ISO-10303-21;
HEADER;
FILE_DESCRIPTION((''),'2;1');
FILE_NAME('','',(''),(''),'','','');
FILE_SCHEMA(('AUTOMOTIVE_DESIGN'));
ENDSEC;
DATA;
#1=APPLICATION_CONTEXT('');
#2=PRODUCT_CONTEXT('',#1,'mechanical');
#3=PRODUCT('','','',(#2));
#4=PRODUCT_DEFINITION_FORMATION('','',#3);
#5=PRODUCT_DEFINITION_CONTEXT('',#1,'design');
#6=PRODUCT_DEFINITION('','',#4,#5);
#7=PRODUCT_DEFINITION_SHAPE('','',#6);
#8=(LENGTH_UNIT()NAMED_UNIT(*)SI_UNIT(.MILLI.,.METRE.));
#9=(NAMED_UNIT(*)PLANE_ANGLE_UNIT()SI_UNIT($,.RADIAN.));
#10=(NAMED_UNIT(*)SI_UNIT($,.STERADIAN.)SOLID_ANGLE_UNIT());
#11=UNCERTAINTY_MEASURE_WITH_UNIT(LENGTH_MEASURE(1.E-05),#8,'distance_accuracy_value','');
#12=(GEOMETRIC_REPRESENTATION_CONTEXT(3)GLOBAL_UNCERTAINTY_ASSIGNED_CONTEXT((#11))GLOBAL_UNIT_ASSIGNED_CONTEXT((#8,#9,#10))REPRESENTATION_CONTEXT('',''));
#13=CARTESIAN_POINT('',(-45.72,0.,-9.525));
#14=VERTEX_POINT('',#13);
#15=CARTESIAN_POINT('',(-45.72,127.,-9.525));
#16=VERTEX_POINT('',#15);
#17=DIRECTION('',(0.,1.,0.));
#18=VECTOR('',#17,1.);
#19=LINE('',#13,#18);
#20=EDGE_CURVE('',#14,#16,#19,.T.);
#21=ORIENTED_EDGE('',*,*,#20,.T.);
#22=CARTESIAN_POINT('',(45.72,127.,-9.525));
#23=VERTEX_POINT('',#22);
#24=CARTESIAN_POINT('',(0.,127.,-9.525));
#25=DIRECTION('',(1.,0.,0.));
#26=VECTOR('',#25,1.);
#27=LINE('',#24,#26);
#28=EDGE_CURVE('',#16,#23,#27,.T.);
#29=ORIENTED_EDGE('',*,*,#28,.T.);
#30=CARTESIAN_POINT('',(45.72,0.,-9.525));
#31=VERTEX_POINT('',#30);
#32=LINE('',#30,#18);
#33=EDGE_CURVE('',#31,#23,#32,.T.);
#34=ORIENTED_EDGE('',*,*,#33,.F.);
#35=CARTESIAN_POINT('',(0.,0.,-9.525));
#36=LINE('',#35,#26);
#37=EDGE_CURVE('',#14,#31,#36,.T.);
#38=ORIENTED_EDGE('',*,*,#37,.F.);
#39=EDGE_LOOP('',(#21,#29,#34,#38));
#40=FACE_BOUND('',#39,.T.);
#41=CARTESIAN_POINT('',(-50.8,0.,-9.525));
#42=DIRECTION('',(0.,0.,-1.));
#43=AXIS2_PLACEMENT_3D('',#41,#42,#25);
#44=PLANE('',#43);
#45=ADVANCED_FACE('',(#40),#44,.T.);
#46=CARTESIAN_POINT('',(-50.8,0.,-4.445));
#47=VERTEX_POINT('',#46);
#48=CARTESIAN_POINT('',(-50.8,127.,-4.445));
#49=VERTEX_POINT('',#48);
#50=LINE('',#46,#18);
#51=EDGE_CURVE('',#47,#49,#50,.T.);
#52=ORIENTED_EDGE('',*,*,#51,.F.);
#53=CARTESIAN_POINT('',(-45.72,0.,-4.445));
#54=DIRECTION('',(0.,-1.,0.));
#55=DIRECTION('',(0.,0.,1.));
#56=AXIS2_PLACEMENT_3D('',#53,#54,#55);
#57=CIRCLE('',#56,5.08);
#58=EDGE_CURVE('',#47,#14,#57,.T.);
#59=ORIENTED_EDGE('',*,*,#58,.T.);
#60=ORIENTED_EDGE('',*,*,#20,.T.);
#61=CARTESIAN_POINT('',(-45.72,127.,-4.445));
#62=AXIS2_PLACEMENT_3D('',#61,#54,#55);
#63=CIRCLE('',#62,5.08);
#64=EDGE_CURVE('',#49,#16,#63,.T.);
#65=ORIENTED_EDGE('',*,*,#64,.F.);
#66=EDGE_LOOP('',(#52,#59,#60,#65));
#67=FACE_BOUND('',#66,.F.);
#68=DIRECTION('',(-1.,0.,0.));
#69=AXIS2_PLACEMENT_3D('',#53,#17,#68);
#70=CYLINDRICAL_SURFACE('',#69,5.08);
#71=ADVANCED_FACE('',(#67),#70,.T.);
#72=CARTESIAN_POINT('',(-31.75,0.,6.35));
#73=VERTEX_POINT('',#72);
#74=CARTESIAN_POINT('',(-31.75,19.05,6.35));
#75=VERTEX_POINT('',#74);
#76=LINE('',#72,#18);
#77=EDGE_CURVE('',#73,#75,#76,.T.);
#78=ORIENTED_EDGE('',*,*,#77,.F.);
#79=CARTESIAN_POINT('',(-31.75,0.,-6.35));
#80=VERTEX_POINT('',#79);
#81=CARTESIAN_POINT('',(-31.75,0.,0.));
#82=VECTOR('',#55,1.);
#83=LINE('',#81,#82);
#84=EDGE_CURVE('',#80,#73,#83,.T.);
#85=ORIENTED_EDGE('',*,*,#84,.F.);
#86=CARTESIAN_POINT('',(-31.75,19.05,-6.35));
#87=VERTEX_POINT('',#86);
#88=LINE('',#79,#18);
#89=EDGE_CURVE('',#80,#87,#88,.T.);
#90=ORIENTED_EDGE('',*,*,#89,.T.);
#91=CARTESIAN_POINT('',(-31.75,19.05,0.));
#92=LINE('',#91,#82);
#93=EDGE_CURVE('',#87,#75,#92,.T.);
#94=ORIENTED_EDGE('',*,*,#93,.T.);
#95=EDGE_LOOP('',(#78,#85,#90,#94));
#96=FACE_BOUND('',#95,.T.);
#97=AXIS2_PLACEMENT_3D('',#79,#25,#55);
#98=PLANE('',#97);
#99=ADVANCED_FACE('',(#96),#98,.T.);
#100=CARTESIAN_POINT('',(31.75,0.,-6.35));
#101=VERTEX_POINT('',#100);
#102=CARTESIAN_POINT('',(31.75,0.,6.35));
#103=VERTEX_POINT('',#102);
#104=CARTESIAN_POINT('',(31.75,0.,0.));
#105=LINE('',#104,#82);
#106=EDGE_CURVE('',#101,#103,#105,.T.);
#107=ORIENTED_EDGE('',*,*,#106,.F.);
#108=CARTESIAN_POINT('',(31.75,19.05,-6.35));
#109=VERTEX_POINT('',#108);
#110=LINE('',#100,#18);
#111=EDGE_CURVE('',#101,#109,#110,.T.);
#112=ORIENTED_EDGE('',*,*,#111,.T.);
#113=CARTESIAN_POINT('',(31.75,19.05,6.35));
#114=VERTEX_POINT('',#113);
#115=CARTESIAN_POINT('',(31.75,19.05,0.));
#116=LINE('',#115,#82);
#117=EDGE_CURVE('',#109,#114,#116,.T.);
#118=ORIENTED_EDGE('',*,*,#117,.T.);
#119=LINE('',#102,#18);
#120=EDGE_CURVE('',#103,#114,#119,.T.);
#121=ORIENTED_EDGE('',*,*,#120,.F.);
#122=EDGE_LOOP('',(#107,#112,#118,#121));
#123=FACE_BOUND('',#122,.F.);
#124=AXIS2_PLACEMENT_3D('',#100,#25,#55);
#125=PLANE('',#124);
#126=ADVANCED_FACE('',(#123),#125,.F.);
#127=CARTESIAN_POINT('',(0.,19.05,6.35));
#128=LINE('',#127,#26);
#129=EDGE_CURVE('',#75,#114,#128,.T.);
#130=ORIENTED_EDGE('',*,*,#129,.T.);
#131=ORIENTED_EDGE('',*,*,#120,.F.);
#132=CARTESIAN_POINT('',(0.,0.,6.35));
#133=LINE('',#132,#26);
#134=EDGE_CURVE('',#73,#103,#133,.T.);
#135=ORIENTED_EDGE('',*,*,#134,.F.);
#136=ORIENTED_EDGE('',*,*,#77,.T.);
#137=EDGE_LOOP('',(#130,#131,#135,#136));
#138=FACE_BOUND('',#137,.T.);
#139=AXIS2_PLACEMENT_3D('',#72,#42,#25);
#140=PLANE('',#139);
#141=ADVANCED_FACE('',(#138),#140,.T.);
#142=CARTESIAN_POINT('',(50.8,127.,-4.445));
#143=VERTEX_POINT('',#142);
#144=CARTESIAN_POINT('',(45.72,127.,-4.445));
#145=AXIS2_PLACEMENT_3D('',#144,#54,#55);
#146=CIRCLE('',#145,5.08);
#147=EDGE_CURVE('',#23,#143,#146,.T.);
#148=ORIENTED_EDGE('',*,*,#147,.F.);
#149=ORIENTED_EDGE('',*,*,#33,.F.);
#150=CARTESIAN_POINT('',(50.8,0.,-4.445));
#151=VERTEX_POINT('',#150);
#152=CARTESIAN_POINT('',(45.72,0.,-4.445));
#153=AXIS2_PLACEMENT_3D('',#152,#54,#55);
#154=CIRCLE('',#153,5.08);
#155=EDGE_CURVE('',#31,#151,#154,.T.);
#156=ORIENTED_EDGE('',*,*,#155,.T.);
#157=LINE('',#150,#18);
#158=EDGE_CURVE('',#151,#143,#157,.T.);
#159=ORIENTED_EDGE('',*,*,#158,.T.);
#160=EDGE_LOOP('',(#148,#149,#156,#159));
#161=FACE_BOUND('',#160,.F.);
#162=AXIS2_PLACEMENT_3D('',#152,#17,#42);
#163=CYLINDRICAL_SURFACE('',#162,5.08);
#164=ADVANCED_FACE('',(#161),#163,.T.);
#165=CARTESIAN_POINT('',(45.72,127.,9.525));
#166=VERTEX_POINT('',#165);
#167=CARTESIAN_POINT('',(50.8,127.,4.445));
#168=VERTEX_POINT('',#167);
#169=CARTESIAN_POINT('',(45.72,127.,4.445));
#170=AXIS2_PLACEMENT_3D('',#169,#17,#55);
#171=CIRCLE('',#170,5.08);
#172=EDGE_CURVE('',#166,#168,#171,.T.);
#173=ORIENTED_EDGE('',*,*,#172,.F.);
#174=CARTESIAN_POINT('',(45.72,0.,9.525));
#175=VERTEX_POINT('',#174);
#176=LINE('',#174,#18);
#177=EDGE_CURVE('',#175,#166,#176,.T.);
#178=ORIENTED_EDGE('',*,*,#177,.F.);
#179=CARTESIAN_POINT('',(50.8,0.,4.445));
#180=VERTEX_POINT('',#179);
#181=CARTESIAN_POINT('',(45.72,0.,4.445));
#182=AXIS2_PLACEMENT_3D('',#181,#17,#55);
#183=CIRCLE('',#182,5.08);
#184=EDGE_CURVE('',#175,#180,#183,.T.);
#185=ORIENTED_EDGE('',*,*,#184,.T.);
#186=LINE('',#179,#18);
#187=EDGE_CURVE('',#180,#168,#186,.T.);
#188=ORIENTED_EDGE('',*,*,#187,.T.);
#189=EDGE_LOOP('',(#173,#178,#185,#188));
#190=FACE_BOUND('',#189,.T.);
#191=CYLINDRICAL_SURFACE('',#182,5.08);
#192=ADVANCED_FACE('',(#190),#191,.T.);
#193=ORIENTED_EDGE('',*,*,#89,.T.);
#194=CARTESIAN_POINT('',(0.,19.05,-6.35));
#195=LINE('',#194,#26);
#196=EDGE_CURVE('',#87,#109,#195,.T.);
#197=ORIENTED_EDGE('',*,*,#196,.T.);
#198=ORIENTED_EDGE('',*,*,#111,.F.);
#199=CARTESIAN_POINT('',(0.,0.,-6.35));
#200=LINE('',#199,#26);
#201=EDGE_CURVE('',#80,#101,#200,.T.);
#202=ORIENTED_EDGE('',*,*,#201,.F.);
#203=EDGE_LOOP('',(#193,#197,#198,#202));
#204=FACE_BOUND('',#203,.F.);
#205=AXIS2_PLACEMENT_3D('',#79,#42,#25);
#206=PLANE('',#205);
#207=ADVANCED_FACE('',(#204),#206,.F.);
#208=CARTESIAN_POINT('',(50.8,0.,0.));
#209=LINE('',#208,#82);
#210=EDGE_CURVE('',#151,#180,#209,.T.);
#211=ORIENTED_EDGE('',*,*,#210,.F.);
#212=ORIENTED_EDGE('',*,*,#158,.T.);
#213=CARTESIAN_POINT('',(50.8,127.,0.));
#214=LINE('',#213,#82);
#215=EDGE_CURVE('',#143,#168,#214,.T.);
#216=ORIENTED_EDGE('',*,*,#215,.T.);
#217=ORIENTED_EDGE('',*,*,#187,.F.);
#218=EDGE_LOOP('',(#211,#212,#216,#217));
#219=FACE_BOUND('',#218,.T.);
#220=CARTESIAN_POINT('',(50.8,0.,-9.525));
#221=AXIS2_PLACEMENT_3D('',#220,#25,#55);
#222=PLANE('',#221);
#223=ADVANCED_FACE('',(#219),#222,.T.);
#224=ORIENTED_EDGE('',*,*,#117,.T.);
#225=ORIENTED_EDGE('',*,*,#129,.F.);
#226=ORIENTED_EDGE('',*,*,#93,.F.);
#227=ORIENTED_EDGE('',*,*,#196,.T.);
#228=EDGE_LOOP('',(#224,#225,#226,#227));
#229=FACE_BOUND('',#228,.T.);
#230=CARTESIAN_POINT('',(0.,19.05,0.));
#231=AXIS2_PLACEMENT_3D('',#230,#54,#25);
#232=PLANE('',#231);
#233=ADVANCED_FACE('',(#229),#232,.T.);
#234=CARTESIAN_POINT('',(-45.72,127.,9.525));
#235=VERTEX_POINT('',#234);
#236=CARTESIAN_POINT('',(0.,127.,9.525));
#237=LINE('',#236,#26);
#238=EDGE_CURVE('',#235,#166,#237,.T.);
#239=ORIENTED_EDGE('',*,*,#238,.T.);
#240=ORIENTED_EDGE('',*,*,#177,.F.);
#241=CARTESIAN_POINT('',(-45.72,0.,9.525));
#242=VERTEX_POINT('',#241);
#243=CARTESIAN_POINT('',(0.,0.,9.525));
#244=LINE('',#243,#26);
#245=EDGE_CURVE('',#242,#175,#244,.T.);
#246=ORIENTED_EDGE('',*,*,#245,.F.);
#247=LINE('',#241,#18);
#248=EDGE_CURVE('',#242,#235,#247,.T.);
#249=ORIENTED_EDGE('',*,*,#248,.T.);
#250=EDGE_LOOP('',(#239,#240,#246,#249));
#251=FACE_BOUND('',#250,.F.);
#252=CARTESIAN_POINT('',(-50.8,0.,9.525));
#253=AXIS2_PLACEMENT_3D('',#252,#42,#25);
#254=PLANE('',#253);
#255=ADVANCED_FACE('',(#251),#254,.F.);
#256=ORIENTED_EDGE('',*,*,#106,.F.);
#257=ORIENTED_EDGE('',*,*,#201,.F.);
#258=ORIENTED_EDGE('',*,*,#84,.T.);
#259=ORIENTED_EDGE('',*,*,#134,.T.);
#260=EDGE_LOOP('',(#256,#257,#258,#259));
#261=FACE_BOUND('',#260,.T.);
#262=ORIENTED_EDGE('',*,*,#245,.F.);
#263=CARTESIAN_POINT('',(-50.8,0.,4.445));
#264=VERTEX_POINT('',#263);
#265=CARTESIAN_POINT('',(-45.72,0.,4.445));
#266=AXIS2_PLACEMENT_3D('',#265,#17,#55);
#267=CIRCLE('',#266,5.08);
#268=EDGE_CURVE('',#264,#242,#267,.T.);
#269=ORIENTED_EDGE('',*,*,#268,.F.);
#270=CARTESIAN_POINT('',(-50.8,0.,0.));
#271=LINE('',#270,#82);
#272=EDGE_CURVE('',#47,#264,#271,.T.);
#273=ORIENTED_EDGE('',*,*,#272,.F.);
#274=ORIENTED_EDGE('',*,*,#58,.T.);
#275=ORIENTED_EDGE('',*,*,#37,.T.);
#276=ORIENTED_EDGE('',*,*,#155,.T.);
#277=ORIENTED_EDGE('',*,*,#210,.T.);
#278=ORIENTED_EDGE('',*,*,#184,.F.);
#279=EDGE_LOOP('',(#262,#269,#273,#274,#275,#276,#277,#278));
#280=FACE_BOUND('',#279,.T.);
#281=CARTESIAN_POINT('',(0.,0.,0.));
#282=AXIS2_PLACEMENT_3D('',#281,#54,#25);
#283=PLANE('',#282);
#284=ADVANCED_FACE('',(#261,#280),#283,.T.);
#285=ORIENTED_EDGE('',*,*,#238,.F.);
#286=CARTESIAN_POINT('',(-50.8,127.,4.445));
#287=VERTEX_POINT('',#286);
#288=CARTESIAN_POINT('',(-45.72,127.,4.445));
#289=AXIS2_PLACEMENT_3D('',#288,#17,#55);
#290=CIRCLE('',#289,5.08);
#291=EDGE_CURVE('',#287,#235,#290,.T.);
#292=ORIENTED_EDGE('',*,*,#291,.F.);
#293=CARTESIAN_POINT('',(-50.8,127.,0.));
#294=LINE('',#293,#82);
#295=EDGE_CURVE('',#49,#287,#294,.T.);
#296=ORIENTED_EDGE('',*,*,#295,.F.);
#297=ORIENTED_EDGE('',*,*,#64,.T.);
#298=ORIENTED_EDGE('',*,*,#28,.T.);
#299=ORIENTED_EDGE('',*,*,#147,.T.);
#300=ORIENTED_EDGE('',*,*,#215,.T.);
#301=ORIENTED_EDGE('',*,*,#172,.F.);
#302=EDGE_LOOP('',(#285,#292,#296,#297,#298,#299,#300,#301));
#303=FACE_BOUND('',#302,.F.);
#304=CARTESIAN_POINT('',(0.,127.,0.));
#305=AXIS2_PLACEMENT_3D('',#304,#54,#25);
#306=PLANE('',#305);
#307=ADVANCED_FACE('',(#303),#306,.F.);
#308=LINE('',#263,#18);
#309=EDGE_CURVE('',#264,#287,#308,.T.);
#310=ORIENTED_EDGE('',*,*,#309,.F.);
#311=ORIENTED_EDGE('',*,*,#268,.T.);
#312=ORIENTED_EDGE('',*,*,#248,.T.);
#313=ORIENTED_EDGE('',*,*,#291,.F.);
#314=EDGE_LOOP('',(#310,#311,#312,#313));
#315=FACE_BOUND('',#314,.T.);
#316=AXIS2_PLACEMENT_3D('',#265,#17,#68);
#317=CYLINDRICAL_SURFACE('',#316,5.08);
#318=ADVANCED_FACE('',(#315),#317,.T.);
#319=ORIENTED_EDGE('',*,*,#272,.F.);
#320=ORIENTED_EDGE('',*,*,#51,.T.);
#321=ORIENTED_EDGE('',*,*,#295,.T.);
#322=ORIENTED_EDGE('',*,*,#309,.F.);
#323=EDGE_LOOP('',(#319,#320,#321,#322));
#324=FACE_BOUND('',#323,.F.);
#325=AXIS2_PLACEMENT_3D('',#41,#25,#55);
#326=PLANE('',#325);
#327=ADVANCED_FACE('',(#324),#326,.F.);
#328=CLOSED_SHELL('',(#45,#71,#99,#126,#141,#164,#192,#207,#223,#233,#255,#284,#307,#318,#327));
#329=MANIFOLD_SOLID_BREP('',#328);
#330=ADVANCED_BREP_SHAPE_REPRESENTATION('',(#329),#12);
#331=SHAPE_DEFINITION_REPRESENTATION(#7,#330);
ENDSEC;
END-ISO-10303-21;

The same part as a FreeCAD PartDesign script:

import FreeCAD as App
import Part
import Sketcher

V = App.Vector
Q = App.Units.Quantity


def edges_at(feature, points):
    """Names of the edges that pass closest to the given points."""
    edges = feature.Shape.Edges
    near = lambda p: min(range(len(edges)), key=lambda i: edges[i].distToShape(Part.Vertex(*p))[0])
    return sorted({f"Edge{near(p) + 1}" for p in points})


def add_polygon(sketch, points):
    """Adds a closed chain of lines whose ends are joined by coincident constraints."""
    first, n = sketch.GeometryCount, len(points)
    for a, b in zip(points, points[1:] + points[:1]):
        sketch.addGeometry(Part.LineSegment(App.Vector(*a, 0), App.Vector(*b, 0)), False)
    for i in range(n):
        sketch.addConstraint(Sketcher.Constraint("Coincident", first + i, 2, first + (i + 1) % n, 1))

doc = App.newDocument("Part")
body = doc.addObject("PartDesign::Body", "Body")

# Sketch on XZ plane
sketch1 = body.newObject("Sketcher::SketchObject", "Sketch")
sketch1.AttachmentSupport = (doc.getObject("XZ_Plane"), [""])
sketch1.MapMode = "FlatFace"
add_polygon(sketch1, [(-51, 10), (-51, -10), (51, -10), (51, 10)])  # lines 0-3
sketch1.addConstraint([
    Sketcher.Constraint("Vertical", 0),
    Sketcher.Constraint("Horizontal", 1),
    Sketcher.Constraint("Vertical", 2),
    Sketcher.Constraint("Horizontal", 3),
    Sketcher.Constraint("Symmetric", 0, 2, 2, 2, -1, 1),
    Sketcher.Constraint("DistanceX", 1, 1, 1, 2, Q("4 in")),
    Sketcher.Constraint("DistanceY", 0, 2, 0, 1, Q("0.75 in")),
])
pad1 = body.newObject("PartDesign::Pad", "Pad")
pad1.Profile = sketch1
pad1.Length = Q("5 in")
pad1.Reversed = True

# Sketch on XZ plane
sketch2 = body.newObject("Sketcher::SketchObject", "Sketch001")
sketch2.AttachmentSupport = (doc.getObject("XZ_Plane"), [""])
sketch2.MapMode = "FlatFace"
add_polygon(sketch2, [(-32, 6), (-32, -6), (32, -6), (32, 6)])  # lines 0-3
sketch2.addConstraint([
    Sketcher.Constraint("Vertical", 0),
    Sketcher.Constraint("Horizontal", 1),
    Sketcher.Constraint("Vertical", 2),
    Sketcher.Constraint("Horizontal", 3),
    Sketcher.Constraint("Symmetric", 0, 2, 2, 2, -1, 1),
    Sketcher.Constraint("DistanceX", 1, 1, 1, 2, Q("2.5 in")),
    Sketcher.Constraint("DistanceY", 0, 2, 0, 1, Q("0.5 in")),
])
pocket1 = body.newObject("PartDesign::Pocket", "Pocket")
pocket1.Profile = sketch2
pocket1.Length = Q("0.75 in")
doc.recompute()

fillet = body.newObject("PartDesign::Fillet", "Fillet")
fillet.Base = (pocket1, edges_at(pocket1, [
    (-50.8, 63.5, 9.525),
    (50.8, 63.5, 9.525),
    (50.8, 63.5, -9.525),
    (-50.8, 63.5, -9.525),
]))
fillet.Radius = Q("0.2 in")

doc.recompute()
